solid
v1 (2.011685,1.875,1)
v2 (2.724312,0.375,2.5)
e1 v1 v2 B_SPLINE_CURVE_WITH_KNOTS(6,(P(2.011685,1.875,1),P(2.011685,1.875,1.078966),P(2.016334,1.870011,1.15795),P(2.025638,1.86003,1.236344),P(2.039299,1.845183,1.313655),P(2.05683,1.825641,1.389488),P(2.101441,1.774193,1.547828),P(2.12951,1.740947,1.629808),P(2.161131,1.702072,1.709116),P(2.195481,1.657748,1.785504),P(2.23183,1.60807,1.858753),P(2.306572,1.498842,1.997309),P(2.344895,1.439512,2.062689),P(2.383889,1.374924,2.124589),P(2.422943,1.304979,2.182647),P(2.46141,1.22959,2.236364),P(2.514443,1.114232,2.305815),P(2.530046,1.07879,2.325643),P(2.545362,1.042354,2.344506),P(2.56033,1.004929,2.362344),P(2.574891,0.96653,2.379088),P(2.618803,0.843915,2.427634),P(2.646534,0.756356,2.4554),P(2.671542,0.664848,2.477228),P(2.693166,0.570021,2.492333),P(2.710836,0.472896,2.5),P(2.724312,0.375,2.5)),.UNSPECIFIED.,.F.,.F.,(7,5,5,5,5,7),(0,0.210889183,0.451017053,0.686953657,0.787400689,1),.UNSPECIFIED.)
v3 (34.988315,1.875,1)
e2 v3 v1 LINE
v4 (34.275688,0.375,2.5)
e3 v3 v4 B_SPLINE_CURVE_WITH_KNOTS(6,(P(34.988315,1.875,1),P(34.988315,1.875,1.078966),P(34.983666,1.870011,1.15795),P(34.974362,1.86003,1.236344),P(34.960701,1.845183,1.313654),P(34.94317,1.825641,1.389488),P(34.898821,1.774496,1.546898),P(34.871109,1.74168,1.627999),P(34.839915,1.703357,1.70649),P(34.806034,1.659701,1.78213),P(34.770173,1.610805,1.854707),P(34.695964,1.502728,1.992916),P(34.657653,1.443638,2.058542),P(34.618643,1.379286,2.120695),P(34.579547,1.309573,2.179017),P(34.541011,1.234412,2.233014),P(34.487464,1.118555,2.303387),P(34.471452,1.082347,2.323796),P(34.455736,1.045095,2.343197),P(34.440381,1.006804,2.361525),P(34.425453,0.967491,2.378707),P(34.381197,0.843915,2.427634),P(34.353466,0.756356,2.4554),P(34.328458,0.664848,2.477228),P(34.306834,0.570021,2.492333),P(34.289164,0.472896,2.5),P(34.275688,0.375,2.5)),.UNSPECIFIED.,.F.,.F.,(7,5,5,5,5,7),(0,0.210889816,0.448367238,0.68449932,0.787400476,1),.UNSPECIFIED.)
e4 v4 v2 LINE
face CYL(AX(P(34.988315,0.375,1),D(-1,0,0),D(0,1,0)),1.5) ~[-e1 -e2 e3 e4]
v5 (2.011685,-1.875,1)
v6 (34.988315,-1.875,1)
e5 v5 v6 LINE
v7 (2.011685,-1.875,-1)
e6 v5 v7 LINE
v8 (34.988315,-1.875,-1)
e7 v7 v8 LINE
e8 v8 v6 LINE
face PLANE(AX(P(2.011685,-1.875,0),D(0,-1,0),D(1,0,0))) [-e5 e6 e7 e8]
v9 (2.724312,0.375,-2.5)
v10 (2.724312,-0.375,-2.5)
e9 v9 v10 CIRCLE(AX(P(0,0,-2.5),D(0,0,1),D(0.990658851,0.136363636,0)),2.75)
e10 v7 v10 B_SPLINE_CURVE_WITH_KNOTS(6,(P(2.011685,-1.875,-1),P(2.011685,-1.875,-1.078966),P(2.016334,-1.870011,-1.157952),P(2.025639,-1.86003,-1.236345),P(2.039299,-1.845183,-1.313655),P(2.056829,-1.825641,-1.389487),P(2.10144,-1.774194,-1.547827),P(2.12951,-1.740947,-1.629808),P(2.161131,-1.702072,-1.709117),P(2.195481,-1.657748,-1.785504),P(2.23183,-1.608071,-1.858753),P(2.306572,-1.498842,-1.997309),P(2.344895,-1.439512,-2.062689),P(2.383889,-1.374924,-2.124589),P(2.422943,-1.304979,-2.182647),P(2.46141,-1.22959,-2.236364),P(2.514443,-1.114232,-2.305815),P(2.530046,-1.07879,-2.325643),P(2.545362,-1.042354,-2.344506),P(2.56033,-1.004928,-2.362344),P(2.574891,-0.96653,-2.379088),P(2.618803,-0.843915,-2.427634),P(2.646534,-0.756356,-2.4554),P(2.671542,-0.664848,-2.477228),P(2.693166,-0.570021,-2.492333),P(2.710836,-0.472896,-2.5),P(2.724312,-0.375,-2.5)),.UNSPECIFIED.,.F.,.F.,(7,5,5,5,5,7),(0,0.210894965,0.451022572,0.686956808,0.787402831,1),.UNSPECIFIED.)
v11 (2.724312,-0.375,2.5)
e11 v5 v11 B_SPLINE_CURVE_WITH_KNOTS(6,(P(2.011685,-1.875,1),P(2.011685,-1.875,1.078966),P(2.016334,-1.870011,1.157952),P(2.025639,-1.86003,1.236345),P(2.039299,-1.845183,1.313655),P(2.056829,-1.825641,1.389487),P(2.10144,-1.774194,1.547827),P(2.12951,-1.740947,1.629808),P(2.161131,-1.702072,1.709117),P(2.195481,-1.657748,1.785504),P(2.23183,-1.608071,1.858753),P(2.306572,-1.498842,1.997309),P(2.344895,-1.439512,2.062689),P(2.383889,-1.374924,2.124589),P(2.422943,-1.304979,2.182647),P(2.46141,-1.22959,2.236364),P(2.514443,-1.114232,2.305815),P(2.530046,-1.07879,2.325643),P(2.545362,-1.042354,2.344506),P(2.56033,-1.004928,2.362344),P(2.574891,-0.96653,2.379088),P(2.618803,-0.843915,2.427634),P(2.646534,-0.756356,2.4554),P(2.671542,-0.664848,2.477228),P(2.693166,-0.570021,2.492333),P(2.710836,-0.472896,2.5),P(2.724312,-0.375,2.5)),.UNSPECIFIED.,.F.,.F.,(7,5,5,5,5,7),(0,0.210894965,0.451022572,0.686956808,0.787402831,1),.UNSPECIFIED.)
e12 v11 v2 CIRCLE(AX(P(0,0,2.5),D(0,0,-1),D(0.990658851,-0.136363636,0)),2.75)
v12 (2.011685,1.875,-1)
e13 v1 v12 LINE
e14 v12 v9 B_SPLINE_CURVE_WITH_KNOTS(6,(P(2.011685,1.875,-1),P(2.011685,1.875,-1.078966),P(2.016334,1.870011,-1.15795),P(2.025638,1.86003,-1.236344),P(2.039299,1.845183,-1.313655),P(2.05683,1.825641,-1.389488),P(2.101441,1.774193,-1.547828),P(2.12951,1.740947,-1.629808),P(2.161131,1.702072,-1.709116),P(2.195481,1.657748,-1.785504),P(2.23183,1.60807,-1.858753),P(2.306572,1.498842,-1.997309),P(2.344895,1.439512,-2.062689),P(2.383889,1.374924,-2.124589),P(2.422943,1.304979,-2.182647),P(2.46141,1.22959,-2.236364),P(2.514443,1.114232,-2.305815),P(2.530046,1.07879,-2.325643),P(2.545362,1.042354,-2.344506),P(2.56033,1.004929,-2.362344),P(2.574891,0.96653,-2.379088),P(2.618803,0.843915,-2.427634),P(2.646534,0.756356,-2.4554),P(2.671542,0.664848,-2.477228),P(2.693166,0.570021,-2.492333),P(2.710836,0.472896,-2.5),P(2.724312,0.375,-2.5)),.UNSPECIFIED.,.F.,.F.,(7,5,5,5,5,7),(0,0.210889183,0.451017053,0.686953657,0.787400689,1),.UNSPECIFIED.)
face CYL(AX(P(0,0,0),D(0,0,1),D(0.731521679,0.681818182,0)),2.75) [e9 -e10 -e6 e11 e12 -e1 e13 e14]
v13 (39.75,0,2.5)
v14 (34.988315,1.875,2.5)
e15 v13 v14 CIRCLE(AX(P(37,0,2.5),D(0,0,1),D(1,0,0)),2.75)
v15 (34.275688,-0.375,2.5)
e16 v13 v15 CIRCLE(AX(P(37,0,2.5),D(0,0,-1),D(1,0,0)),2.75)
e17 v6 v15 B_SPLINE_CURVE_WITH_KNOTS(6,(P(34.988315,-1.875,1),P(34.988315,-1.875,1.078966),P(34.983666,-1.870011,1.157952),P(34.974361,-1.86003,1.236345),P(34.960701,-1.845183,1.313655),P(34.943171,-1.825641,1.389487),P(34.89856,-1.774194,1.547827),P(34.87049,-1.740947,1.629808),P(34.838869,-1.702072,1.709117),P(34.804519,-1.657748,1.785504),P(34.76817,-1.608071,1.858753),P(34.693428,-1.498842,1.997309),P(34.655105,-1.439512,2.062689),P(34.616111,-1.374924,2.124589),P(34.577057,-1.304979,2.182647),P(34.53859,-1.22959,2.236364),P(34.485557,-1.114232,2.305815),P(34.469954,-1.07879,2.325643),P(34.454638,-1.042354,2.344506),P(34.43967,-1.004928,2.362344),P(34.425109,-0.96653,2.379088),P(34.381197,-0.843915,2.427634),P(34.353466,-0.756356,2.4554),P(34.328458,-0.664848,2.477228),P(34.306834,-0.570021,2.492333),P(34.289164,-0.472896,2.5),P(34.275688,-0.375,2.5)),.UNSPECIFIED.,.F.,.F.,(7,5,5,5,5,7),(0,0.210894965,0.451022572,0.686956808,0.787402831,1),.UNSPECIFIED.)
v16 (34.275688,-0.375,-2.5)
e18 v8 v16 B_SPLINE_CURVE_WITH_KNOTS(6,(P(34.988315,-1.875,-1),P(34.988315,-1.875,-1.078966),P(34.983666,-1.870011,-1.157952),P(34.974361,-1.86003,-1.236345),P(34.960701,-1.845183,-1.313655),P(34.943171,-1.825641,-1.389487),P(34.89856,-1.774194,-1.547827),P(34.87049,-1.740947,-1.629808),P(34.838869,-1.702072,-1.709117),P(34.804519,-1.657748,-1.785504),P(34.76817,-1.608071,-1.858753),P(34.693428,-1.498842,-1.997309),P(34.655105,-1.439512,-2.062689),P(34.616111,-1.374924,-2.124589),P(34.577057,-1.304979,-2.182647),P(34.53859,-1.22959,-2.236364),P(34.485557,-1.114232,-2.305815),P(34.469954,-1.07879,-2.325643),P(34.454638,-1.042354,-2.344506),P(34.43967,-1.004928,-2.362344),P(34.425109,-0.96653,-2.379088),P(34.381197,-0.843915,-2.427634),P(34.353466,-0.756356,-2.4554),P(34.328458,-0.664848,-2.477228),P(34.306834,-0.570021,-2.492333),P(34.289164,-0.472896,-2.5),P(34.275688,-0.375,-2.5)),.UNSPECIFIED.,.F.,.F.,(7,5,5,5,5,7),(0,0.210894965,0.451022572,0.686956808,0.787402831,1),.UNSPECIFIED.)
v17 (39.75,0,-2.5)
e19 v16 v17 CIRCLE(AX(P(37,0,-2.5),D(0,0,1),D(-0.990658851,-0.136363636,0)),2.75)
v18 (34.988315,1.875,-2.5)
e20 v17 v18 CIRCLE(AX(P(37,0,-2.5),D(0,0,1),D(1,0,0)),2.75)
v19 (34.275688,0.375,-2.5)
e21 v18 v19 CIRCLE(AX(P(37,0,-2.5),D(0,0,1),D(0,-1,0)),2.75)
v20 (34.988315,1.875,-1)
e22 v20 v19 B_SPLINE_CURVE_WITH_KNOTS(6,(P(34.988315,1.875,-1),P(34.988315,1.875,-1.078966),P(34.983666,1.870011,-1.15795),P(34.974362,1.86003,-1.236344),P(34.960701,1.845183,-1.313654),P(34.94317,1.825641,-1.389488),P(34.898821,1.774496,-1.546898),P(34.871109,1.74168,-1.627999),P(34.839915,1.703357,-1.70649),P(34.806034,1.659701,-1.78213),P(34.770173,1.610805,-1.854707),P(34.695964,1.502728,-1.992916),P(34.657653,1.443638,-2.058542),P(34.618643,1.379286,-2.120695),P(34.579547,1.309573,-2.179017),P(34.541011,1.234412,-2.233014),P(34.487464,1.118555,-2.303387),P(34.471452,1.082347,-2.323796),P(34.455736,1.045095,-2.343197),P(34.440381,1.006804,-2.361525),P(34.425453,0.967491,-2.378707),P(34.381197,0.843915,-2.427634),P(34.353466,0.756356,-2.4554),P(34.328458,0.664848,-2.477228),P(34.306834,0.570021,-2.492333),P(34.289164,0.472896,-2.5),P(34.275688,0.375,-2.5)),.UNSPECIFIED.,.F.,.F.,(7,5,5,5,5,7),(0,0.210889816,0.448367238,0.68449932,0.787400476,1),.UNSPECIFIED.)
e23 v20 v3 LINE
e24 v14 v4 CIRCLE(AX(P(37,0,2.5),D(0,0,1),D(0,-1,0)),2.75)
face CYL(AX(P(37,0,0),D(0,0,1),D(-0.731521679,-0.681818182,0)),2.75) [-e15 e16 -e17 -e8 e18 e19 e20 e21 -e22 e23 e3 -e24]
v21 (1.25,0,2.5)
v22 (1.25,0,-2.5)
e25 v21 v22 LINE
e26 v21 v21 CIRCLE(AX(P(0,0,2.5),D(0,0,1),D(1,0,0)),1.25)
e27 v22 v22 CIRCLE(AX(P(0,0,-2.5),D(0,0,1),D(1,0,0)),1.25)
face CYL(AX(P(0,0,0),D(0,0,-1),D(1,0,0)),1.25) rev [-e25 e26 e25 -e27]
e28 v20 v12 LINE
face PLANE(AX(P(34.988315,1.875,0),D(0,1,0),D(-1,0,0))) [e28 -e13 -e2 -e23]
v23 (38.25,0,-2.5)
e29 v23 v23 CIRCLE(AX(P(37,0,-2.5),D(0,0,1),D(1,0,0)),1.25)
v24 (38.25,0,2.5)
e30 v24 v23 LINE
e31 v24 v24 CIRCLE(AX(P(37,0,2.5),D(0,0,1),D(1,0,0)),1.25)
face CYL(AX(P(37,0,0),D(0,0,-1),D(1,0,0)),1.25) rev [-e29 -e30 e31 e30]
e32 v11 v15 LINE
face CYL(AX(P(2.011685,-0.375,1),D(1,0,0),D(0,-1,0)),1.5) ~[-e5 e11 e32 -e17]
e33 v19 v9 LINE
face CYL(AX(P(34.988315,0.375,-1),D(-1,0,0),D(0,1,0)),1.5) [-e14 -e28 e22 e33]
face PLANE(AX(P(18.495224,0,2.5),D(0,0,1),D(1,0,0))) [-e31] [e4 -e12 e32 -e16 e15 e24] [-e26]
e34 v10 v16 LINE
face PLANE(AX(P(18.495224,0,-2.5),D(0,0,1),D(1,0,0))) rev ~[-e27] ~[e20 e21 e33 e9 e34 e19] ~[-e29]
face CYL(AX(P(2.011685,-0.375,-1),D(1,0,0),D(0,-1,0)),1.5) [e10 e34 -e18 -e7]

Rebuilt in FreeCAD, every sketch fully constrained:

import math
import FreeCAD as App
import Part
import Sketcher
from FreeCAD import Vector
Q = App.Units.Quantity


def edges_at(feature, points):
    """Names of the edges that pass closest to the given points."""
    edges = feature.Shape.Edges
    near = lambda p: min(range(len(edges)), key=lambda i: edges[i].distToShape(Part.Vertex(*p))[0])
    return sorted({f"Edge{near(p) + 1}" for p in points})

doc = App.newDocument("Part")
body = doc.addObject("PartDesign::Body", "Body")

# Sketch on XY plane
sketch1 = body.newObject("Sketcher::SketchObject", "Sketch")
sketch1.AttachmentSupport = (doc.getObject("XY_Plane"), [""])
sketch1.MapMode = "FlatFace"
sketch1.addGeometry([
    Part.LineSegment(Vector(2, -1.9, 0), Vector(35, -1.9, 0)),  # 0
    Part.ArcOfCircle(Part.Circle(Vector(37, 0, 0), Vector(0, 0, 1), 2.8), math.radians(-137), math.radians(0)),  # 1
    Part.ArcOfCircle(Part.Circle(Vector(37, 0, 0), Vector(0, 0, 1), 2.8), math.radians(0), math.radians(137)),  # 2
    Part.LineSegment(Vector(35, 1.9, 0), Vector(2, 1.9, 0)),  # 3
    Part.ArcOfCircle(Part.Circle(Vector(0, 0, 0), Vector(0, 0, 1), 2.8), math.radians(43), math.radians(317)),  # 4
    Part.Circle(Vector(0, 0, 0), Vector(0, 0, 1), 1.2),  # 5
    Part.Circle(Vector(37, 0, 0), Vector(0, 0, 1), 1.2),  # 6
], False)
sketch1.addConstraint([
    Sketcher.Constraint("Coincident", 0, 2, 1, 1),
    Sketcher.Constraint("Tangent", 1, 2, 2, 1),
    Sketcher.Constraint("Coincident", 2, 2, 3, 1),
    Sketcher.Constraint("Coincident", 3, 2, 4, 1),
    Sketcher.Constraint("Coincident", 4, 2, 0, 1),
    Sketcher.Constraint("Horizontal", 0),
    Sketcher.Constraint("Horizontal", 3),
    Sketcher.Constraint("Coincident", 4, 3, -1, 1),
    Sketcher.Constraint("Coincident", 5, 3, -1, 1),
    Sketcher.Constraint("Coincident", 6, 3, 1, 3),
    Sketcher.Constraint("Equal", 1, 2),
    Sketcher.Constraint("Equal", 2, 4),
    Sketcher.Constraint("Equal", 5, 6),
    Sketcher.Constraint("Symmetric", 0, 2, 2, 2, -1),
    Sketcher.Constraint("PointOnObject", 1, 2, -1),
    Sketcher.Constraint("Diameter", 5, Q("2.5 mm")),
    Sketcher.Constraint("Radius", 1, Q("2.75 mm")),
    Sketcher.Constraint("DistanceX", -1, 1, 1, 3, Q("37 mm")),
    Sketcher.Constraint("DistanceY", 0, 2, 2, 2, Q("3.75 mm")),
])
pad1 = body.newObject("PartDesign::Pad", "Pad")
pad1.Profile = sketch1
pad1.Length = 5
pad1.Midplane = True
doc.recompute()

fillet = body.newObject("PartDesign::Fillet", "Fillet")
fillet.Base = (pad1, edges_at(pad1, [
    (18.5, 1.875, 2.5),
    (18.5, -1.875, 2.5),
    (18.5, -1.875, -2.5),
    (18.5, 1.875, -2.5),
]))
fillet.Radius = 1.5

doc.recompute()
